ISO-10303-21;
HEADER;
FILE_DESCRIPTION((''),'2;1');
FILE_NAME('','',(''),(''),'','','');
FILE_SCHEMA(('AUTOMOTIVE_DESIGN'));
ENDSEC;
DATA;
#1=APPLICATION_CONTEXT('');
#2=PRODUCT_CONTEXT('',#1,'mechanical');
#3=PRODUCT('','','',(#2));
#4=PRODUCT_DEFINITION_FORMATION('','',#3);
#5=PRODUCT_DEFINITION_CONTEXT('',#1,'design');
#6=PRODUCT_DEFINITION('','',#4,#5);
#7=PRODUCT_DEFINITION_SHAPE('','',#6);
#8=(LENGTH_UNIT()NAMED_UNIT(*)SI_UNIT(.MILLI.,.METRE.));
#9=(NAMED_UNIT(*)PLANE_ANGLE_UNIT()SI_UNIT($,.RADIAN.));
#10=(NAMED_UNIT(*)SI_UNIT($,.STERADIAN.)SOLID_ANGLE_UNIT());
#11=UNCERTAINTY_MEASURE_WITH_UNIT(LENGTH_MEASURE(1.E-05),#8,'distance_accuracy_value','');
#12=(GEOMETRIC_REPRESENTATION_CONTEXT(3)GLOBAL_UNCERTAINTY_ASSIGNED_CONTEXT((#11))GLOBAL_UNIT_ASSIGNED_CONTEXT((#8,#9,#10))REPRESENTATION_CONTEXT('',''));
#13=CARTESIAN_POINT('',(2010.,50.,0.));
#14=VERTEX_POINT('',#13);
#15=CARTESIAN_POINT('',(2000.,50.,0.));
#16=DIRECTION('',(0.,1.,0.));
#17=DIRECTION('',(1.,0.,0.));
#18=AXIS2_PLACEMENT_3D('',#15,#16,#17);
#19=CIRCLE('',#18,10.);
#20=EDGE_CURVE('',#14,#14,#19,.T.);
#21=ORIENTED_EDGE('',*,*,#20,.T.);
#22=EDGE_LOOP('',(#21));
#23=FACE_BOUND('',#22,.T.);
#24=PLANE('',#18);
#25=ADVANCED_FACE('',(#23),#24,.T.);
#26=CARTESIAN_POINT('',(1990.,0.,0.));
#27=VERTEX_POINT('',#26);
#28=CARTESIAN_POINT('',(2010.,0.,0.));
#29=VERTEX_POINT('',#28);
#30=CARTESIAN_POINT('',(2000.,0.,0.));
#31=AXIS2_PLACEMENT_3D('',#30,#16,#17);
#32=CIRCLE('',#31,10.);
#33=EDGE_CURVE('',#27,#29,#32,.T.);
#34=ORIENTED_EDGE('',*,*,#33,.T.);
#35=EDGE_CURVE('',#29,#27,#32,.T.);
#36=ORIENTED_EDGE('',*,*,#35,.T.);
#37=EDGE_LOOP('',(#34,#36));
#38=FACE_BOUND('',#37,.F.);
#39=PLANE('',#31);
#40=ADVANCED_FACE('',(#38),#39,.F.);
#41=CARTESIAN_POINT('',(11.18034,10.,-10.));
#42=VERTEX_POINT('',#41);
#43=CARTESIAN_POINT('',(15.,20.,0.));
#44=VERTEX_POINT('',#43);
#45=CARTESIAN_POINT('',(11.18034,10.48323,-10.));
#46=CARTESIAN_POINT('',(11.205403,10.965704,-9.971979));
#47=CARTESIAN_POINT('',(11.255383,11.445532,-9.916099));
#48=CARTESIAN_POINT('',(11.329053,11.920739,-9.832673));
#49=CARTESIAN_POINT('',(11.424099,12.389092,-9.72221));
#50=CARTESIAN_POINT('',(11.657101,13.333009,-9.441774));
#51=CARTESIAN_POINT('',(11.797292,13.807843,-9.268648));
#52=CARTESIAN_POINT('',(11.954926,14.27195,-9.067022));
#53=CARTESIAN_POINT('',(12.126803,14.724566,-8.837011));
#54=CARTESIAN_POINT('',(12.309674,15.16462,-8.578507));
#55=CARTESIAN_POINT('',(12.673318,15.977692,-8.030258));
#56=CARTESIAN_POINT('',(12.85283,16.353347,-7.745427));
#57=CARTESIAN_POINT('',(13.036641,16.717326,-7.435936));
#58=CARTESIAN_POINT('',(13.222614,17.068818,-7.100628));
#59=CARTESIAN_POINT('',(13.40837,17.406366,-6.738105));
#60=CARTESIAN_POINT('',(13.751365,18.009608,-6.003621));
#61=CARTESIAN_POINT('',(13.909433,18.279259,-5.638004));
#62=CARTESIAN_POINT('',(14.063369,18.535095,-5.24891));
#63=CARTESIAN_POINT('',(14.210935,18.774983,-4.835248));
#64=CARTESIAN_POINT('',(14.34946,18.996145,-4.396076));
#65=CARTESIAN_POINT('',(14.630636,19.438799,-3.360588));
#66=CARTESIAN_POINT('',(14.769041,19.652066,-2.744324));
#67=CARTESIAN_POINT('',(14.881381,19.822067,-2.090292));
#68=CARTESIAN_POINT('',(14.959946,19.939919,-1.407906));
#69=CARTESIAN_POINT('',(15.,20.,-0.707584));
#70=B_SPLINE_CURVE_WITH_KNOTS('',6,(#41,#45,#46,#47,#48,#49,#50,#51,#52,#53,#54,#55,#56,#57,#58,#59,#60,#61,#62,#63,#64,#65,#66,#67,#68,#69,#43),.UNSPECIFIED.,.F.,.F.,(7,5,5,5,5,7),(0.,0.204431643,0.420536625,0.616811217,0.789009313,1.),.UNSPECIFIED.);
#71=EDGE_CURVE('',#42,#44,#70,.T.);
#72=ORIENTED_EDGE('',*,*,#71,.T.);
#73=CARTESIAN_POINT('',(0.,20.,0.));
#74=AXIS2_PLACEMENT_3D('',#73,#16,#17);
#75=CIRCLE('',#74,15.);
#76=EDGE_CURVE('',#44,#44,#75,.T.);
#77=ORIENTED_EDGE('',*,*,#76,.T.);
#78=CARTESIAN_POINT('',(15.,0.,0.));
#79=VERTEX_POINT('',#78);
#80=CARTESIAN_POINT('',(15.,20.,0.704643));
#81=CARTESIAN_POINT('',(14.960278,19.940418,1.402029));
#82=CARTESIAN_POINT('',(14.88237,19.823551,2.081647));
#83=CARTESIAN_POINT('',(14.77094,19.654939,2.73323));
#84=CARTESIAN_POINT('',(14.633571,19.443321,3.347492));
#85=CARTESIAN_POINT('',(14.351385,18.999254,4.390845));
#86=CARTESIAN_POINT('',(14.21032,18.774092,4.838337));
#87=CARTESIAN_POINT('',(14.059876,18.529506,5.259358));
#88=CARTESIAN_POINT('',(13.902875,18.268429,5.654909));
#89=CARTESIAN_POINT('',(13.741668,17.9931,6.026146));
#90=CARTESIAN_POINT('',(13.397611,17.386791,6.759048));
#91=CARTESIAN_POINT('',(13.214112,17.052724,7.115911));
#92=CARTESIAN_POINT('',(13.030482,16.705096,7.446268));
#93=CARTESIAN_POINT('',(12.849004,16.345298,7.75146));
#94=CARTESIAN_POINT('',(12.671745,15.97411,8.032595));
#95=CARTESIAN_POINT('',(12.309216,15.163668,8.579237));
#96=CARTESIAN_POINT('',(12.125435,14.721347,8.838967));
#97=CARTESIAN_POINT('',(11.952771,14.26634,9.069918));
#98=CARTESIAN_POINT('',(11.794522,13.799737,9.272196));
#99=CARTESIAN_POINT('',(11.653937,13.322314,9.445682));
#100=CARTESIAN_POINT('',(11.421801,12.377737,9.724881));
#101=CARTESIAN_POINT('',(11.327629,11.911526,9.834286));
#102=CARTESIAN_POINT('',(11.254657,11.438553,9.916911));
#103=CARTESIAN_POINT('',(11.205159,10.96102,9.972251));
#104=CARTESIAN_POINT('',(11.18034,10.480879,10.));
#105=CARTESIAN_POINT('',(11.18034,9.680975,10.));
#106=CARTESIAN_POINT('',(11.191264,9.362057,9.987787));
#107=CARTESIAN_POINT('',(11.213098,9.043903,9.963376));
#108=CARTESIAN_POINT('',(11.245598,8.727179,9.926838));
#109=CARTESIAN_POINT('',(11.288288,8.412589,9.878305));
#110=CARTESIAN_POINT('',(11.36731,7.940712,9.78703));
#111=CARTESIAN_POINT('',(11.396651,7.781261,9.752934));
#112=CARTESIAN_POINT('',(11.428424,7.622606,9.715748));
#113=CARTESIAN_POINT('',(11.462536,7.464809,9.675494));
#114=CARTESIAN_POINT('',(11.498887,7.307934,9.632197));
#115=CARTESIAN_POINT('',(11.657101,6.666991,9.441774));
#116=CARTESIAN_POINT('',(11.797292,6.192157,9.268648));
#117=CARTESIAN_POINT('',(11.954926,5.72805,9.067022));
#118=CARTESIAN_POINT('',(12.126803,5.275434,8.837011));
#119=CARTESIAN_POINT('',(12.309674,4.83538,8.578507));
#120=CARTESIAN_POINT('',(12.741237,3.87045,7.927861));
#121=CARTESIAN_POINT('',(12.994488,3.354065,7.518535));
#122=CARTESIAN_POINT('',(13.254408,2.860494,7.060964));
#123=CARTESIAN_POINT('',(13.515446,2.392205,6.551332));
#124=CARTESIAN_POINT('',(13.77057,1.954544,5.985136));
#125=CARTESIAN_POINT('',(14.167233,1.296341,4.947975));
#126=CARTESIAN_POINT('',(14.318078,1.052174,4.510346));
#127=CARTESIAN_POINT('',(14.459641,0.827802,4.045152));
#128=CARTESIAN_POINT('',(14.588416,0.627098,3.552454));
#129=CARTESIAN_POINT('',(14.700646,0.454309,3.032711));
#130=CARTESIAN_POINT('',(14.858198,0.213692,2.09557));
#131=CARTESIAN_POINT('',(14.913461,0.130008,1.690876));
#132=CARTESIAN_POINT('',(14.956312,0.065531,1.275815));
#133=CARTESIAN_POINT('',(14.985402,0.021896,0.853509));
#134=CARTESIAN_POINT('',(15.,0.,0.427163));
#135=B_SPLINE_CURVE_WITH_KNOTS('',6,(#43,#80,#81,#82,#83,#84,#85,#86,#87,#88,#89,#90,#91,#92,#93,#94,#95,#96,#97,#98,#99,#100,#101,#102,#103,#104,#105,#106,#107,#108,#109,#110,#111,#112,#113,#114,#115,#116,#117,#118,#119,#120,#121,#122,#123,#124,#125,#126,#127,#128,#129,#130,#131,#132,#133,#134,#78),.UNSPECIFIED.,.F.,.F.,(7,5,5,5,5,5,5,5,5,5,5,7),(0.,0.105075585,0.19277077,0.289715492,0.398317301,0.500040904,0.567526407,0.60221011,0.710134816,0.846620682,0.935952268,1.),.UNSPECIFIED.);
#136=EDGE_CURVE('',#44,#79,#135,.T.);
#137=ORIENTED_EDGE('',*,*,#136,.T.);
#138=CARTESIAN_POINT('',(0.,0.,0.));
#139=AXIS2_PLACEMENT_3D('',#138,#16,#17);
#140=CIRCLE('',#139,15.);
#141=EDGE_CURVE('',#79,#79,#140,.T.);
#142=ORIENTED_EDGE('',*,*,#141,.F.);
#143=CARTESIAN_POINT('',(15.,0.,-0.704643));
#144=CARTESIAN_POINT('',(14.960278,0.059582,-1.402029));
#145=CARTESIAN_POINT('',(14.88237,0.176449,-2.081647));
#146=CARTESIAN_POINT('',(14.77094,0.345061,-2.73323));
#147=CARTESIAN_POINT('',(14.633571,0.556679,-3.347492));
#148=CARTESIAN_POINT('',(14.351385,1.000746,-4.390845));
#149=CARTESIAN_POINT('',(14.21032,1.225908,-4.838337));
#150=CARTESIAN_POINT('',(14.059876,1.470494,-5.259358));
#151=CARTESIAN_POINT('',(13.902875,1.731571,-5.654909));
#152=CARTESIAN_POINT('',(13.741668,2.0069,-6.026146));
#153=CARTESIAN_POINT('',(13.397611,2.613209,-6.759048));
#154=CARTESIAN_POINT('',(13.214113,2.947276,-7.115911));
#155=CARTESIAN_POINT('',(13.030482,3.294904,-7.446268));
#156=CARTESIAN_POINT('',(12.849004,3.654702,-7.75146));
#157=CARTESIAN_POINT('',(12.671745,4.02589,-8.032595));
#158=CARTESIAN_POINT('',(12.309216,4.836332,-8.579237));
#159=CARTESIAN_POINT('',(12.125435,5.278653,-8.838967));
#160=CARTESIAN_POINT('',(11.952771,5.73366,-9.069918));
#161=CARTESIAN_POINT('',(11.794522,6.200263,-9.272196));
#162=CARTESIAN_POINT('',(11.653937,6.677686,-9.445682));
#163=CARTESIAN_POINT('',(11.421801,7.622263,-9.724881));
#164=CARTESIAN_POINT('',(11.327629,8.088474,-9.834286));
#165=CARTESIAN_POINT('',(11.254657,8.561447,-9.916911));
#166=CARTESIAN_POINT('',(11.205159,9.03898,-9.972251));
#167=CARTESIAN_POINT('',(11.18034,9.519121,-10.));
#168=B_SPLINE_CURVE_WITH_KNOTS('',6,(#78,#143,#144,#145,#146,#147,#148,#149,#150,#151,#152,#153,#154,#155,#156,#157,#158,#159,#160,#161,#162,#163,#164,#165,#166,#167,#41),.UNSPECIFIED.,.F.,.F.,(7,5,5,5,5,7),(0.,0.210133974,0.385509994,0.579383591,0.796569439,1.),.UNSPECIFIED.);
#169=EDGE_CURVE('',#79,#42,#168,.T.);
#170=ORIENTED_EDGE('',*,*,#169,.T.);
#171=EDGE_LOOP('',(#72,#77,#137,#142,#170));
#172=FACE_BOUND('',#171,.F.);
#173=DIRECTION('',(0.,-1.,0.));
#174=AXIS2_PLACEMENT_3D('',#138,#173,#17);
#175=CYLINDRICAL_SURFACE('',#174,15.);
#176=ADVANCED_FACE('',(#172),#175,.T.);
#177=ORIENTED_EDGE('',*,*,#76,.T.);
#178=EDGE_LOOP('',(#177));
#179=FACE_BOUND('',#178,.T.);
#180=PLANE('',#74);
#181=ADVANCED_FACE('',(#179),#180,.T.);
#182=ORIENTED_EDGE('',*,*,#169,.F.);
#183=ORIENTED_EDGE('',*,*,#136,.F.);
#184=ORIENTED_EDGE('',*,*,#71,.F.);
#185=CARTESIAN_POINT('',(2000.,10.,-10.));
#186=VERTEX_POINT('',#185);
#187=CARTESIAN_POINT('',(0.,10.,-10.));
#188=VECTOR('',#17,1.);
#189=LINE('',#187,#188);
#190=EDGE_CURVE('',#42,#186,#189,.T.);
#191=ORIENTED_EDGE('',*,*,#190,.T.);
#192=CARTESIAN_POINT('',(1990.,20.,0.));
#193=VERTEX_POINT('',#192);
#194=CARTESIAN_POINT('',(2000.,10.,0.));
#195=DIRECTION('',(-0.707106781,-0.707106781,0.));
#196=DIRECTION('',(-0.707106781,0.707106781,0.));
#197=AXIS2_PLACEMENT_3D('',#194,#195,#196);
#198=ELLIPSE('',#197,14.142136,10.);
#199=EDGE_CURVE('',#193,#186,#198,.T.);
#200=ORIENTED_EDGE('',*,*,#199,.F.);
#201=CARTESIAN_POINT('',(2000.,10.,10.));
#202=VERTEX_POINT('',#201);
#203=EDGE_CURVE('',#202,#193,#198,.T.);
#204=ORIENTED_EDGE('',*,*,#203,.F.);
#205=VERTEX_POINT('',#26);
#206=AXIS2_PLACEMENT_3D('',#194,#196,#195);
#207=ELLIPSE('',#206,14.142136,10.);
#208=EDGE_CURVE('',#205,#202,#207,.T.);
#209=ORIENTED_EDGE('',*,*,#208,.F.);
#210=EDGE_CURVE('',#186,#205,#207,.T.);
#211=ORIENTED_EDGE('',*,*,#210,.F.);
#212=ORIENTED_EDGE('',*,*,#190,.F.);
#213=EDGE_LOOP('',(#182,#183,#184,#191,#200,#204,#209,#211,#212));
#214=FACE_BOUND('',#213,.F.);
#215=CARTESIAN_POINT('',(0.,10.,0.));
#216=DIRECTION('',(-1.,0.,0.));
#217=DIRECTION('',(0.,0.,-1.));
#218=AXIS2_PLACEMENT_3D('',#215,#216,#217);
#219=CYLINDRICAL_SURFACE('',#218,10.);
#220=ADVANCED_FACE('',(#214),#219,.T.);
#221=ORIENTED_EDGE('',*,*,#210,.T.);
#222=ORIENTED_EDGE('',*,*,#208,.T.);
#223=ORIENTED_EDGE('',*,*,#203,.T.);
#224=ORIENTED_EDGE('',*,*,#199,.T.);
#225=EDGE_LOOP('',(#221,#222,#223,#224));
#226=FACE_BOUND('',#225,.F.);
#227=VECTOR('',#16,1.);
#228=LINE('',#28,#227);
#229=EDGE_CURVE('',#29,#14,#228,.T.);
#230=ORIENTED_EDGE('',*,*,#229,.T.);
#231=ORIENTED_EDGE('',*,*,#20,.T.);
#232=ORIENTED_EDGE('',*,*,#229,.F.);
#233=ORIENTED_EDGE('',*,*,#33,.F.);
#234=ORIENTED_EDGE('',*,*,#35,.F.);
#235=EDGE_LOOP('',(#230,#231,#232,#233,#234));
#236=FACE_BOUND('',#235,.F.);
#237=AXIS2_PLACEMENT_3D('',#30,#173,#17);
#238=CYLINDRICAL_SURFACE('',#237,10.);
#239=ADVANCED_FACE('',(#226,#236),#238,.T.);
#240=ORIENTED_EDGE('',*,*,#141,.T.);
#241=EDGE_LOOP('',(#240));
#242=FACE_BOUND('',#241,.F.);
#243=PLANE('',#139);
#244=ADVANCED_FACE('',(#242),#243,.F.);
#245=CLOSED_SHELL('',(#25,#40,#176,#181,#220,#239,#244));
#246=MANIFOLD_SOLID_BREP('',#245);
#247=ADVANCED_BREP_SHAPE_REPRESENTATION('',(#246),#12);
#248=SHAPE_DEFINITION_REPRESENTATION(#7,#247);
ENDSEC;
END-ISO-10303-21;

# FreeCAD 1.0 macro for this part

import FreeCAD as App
import Part
import Sketcher
from FreeCAD import Vector

doc = App.newDocument("Part")
body = doc.addObject("PartDesign::Body", "Body")

sketch1 = body.newObject("Sketcher::SketchObject", "Sketch")
sketch1.AttachmentSupport = (doc.getObject("XZ_Plane"), [""])
sketch1.MapMode = "FlatFace"
sketch1.addGeometry(Part.Circle(Vector(0, 0, 0), Vector(0, 0, 1), 15), False)
sketch1.addConstraint(Sketcher.Constraint("Coincident", 0, 3, -1, 1))
sketch1.addConstraint(Sketcher.Constraint("Diameter", 0, 30.0))
pad1 = body.newObject("PartDesign::Pad", "Pad")
pad1.Profile = sketch1
pad1.Length = 20
pad1.Reversed = True

sketch2 = body.newObject("Sketcher::SketchObject", "Sketch001")
sketch2.AttachmentSupport = (doc.getObject("YZ_Plane"), [""])
sketch2.MapMode = "FlatFace"
sketch2.addGeometry(Part.Circle(Vector(10, 0, 0), Vector(0, 0, 1), 10), False)
sketch2.addConstraint(Sketcher.Constraint("PointOnObject", 0, 3, -1))
sketch2.addConstraint(Sketcher.Constraint("Diameter", 0, 20.0))
sketch2.addConstraint(Sketcher.Constraint("DistanceX", -1, 1, 0, 3, 10.0))
pad2 = body.newObject("PartDesign::Pad", "Pad001")
pad2.Profile = sketch2
pad2.Length = 2000

sketch3 = body.newObject("Sketcher::SketchObject", "Sketch002")
sketch3.AttachmentSupport = (doc.getObject("XZ_Plane"), [""])
sketch3.MapMode = "FlatFace"
sketch3.addGeometry(Part.Circle(Vector(2000, 0, 0), Vector(0, 0, 1), 10), False)
sketch3.addConstraint(Sketcher.Constraint("PointOnObject", 0, 3, -1))
sketch3.addConstraint(Sketcher.Constraint("Diameter", 0, 20.0))
sketch3.addConstraint(Sketcher.Constraint("DistanceX", -1, 1, 0, 3, 2000.0))
pad3 = body.newObject("PartDesign::Pad", "Pad002")
pad3.Profile = sketch3
pad3.Length = 50
pad3.Reversed = True

doc.recompute()
